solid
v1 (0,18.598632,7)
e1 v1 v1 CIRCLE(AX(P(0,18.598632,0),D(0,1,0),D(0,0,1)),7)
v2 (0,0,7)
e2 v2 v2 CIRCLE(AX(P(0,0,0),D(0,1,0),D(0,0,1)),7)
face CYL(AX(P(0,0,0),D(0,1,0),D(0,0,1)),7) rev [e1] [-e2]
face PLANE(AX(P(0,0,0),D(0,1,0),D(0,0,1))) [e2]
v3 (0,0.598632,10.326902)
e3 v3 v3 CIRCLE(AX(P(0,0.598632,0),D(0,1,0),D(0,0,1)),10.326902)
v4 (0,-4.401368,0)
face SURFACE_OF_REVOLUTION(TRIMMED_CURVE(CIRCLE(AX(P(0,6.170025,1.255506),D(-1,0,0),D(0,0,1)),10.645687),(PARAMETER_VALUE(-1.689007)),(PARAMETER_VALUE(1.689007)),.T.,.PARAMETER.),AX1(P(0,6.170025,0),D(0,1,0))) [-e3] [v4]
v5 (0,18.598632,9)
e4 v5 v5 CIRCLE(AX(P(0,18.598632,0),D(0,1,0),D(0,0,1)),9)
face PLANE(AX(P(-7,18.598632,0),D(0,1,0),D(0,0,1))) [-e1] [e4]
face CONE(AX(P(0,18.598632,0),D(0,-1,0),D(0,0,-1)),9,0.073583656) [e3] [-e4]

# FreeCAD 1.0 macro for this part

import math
import FreeCAD as App
import Part
import Sketcher

V = App.Vector
Q = App.Units.Quantity

doc = App.newDocument("Part")
body = doc.addObject("PartDesign::Body", "Body")

# Sketch on XY plane
sketch1 = body.newObject("Sketcher::SketchObject", "Sketch")
sketch1.AttachmentSupport = (doc.getObject("XY_Plane"), [""])
sketch1.MapMode = "FlatFace"
sketch1.addGeometry(Part.LineSegment(V(0, 0, 0), V(-7, 0, 0)), False)
sketch1.addGeometry(Part.LineSegment(V(-7, 0, 0), V(-7, 18.598632, 0)), False)
sketch1.addGeometry(Part.LineSegment(V(-7, 18.598632, 0), V(-9, 18.598632, 0)), False)
sketch1.addGeometry(Part.LineSegment(V(-9, 18.598632, 0), V(-10.326902, 0.598632, 0)), False)
sketch1.addGeometry(Part.ArcOfCircle(Part.Circle(V(-1.255506, 6.170025, 0), V(0, 0, 1), 10.645687), math.radians(-148.442939), math.radians(-83.227024)), False)
sketch1.addGeometry(Part.LineSegment(V(0, -4.401368, 0), V(0, 0, 0)), False)
sketch1.addConstraint(Sketcher.Constraint("Coincident", 0, 2, 1, 1))
sketch1.addConstraint(Sketcher.Constraint("Coincident", 1, 2, 2, 1))
sketch1.addConstraint(Sketcher.Constraint("Coincident", 2, 2, 3, 1))
sketch1.addConstraint(Sketcher.Constraint("Coincident", 3, 2, 4, 1))
sketch1.addConstraint(Sketcher.Constraint("Coincident", 4, 2, 5, 1))
sketch1.addConstraint(Sketcher.Constraint("Coincident", 5, 2, 0, 1))
sketch1.addConstraint(Sketcher.Constraint("Horizontal", 0))
sketch1.addConstraint(Sketcher.Constraint("Vertical", 1))
sketch1.addConstraint(Sketcher.Constraint("Horizontal", 2))
sketch1.addConstraint(Sketcher.Constraint("Vertical", 5))
sketch1.addConstraint(Sketcher.Constraint("Coincident", 5, 2, -1, 1))
sketch1.addConstraint(Sketcher.Constraint("DistanceX", 0, 2, 0, 1, Q("7 mm")))
sketch1.addConstraint(Sketcher.Constraint("DistanceX", 2, 2, 2, 1, Q("2 mm")))
sketch1.addConstraint(Sketcher.Constraint("DistanceY", 3, 2, 2, 2, Q("18 mm")))
sketch1.addConstraint(Sketcher.Constraint("DistanceY", 4, 2, 3, 2, Q("5 mm")))
sketch1.addConstraint(Sketcher.Constraint("Radius", 4, Q("10.645687 mm")))
sketch1.addConstraint(Sketcher.Constraint("DistanceY", 1, 1, 1, 2, Q("18.598632 mm")))
sketch1.addConstraint(Sketcher.Constraint("DistanceX", 3, 2, -1, 1, Q("10.326902 mm")))
revolution = body.newObject("PartDesign::Revolution", "Revolution")
revolution.Profile = sketch1
revolution.ReferenceAxis = (sketch1, ["V_Axis"])
revolution.Angle = 360

doc.recompute()
